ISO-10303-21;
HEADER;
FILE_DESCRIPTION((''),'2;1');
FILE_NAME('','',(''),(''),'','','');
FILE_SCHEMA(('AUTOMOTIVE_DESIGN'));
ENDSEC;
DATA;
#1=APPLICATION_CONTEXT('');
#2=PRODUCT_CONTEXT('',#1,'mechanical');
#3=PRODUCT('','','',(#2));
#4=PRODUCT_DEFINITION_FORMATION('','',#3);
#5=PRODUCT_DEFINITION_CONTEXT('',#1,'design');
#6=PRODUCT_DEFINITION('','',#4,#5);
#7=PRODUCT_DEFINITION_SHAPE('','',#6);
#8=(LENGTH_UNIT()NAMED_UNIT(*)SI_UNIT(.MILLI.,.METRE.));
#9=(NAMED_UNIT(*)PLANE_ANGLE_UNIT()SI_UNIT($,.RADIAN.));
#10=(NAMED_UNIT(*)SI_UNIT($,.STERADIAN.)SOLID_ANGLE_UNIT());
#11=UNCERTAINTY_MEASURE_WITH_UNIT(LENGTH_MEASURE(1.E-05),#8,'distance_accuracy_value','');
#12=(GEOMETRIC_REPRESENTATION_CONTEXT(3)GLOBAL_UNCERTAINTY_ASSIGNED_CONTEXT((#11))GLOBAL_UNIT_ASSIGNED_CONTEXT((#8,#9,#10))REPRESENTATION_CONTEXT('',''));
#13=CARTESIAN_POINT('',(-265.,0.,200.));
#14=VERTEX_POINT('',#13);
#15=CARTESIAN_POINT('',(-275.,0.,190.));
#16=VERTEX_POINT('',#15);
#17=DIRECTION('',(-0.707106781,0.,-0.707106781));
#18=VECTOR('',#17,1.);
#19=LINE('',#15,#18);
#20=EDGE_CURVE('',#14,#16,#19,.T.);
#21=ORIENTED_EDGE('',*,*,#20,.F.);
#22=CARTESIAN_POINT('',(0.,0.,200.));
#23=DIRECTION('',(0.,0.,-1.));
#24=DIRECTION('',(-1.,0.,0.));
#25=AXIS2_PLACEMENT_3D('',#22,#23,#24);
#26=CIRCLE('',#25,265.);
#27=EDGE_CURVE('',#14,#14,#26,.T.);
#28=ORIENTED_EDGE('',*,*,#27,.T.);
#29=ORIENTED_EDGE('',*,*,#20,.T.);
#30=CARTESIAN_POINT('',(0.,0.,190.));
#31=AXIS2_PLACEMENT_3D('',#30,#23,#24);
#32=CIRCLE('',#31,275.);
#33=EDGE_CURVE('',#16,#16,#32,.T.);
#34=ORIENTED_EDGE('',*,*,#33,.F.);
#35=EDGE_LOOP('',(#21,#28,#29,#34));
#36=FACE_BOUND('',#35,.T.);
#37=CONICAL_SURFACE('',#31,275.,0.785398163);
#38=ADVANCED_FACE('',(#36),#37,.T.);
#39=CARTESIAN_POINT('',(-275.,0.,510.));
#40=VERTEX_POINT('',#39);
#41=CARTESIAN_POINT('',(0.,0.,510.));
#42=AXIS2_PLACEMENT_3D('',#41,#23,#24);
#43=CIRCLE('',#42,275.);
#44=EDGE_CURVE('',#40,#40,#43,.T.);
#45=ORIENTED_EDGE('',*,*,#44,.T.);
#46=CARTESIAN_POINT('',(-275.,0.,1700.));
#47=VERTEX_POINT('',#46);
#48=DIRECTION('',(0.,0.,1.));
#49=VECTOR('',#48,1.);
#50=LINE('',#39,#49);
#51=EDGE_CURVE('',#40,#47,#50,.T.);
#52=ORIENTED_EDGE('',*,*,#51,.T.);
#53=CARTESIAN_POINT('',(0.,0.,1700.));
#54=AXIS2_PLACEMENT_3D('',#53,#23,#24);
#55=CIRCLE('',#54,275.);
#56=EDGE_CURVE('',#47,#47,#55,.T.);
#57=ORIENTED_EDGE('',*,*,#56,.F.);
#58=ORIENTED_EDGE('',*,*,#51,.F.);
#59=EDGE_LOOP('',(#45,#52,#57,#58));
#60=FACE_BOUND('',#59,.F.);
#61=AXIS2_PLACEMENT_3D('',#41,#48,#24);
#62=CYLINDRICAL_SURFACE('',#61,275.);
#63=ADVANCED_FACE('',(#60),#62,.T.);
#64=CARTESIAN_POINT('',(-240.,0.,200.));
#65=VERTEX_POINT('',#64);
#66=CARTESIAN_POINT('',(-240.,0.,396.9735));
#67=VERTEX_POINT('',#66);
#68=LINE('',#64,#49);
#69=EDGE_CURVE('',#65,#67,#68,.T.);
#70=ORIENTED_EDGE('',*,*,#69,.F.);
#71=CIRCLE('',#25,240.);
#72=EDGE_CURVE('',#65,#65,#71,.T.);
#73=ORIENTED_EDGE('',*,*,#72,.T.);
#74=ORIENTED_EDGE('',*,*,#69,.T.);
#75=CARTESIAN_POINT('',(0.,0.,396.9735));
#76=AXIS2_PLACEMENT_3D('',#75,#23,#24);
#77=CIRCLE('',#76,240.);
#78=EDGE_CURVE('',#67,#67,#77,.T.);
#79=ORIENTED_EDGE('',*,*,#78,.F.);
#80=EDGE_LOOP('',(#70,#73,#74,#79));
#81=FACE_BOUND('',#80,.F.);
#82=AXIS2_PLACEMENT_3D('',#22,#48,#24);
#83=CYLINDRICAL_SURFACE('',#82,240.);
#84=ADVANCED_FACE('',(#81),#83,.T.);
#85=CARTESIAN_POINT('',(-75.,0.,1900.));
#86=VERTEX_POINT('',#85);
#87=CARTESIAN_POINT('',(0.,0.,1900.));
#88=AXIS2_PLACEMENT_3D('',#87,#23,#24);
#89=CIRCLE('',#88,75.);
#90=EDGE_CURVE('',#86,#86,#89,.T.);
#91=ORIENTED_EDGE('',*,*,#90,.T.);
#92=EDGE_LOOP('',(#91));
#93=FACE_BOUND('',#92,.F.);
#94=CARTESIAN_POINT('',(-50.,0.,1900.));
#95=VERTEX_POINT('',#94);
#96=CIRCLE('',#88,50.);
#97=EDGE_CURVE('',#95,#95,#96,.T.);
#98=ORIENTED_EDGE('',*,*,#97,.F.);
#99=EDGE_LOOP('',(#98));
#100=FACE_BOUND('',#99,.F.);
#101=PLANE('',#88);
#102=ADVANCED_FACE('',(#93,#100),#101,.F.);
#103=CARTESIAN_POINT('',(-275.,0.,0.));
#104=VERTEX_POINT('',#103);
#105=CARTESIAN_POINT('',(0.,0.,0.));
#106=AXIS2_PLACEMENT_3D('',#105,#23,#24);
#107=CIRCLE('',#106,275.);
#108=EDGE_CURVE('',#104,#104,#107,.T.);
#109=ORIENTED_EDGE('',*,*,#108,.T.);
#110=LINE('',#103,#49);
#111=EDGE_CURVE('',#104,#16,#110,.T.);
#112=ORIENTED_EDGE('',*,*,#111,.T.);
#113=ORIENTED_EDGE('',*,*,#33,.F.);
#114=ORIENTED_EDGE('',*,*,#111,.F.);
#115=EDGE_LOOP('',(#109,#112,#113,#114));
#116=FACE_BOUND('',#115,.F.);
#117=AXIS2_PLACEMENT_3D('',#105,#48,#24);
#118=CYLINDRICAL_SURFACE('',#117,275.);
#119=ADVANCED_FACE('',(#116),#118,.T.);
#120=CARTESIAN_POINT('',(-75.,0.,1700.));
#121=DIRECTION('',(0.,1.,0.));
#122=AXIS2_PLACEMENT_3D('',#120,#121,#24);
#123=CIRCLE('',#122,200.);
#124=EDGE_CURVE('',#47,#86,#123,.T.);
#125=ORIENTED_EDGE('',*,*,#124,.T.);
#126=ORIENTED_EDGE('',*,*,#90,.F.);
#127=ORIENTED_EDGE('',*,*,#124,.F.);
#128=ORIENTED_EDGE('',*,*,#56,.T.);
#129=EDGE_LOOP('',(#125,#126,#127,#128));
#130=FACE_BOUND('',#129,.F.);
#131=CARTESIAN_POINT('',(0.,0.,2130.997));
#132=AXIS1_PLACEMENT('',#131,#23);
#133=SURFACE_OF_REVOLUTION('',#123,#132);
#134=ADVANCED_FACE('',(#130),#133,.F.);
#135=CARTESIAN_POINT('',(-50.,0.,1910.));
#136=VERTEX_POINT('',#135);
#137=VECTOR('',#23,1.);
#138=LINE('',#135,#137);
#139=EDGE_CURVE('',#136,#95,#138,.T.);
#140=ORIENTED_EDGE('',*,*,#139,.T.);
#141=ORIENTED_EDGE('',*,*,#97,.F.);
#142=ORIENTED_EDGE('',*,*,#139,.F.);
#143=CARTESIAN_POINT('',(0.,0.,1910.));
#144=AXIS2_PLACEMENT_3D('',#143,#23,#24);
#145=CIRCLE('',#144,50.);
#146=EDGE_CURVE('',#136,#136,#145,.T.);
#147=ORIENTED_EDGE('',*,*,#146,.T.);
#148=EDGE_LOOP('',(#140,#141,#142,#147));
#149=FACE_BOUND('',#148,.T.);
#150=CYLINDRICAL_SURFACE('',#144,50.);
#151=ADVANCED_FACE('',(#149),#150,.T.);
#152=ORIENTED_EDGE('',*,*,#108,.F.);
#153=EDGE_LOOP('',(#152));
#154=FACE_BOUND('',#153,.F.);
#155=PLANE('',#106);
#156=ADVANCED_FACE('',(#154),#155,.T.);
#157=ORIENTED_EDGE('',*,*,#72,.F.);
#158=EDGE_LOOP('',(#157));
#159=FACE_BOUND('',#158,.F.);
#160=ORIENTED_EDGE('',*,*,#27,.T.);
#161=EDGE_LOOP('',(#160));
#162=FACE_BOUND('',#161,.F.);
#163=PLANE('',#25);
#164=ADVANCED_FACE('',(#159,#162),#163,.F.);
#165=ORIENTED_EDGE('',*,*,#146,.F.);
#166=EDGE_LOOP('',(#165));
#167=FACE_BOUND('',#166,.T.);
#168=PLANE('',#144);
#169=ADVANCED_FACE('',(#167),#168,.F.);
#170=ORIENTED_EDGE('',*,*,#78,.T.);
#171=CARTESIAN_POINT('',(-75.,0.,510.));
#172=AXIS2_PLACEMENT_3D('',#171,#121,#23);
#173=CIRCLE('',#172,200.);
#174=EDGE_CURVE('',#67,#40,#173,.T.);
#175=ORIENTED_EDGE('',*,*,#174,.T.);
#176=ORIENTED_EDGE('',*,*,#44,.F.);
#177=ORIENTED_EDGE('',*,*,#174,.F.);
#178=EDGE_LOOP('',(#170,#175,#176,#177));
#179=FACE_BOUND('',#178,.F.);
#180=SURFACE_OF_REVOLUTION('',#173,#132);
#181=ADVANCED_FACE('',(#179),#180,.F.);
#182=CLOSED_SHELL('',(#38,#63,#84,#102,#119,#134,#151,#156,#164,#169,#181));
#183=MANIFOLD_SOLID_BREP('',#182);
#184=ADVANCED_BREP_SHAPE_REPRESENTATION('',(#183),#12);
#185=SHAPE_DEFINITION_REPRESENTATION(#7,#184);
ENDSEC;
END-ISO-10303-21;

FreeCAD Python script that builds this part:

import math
import FreeCAD as App
import Part
import Sketcher

V = App.Vector
Q = App.Units.Quantity


def edges_at(feature, points):
    """Names of the edges that pass closest to the given points."""
    edges = feature.Shape.Edges
    near = lambda p: min(range(len(edges)), key=lambda i: edges[i].distToShape(Part.Vertex(*p))[0])
    return sorted({f"Edge{near(p) + 1}" for p in points})

doc = App.newDocument("Part")
body = doc.addObject("PartDesign::Body", "Body")

# Sketch on XZ plane
sketch1 = doc.addObject("Sketcher::SketchObject", "Sketch")
body.addObject(sketch1)
sketch1.AttachmentSupport = (doc.XZ_Plane, [""])
sketch1.MapMode = "FlatFace"
sketch1.addGeometry(Part.LineSegment(V(-50, 1910, 0), V(0, 1910, 0)), False)
sketch1.addGeometry(Part.LineSegment(V(0, 1910, 0), V(0, 0, 0)), False)
sketch1.addGeometry(Part.LineSegment(V(0, 0, 0), V(-275, 0, 0)), False)
sketch1.addGeometry(Part.LineSegment(V(-275, 0, 0), V(-275, 200, 0)), False)
sketch1.addGeometry(Part.LineSegment(V(-275, 200, 0), V(-240, 200, 0)), False)
sketch1.addGeometry(Part.LineSegment(V(-240, 200, 0), V(-240, 397, 0)), False)
sketch1.addGeometry(Part.ArcOfCircle(Part.Circle(V(-75, 510, 0), V(0, 0, 1), 200), math.radians(180), math.radians(214)), False)
sketch1.addGeometry(Part.LineSegment(V(-275, 510, 0), V(-275, 1700, 0)), False)
sketch1.addGeometry(Part.ArcOfCircle(Part.Circle(V(-75, 1700, 0), V(0, 0, 1), 200), math.radians(90), math.radians(180)), False)
sketch1.addGeometry(Part.LineSegment(V(-75, 1900, 0), V(-50, 1900, 0)), False)
sketch1.addGeometry(Part.LineSegment(V(-50, 1900, 0), V(-50, 1910, 0)), False)
sketch1.addConstraint(Sketcher.Constraint("Coincident", 0, 2, 1, 1))
sketch1.addConstraint(Sketcher.Constraint("Coincident", 1, 2, 2, 1))
sketch1.addConstraint(Sketcher.Constraint("Coincident", 2, 2, 3, 1))
sketch1.addConstraint(Sketcher.Constraint("Coincident", 3, 2, 4, 1))
sketch1.addConstraint(Sketcher.Constraint("Coincident", 4, 2, 5, 1))
sketch1.addConstraint(Sketcher.Constraint("Coincident", 5, 2, 6, 2))
sketch1.addConstraint(Sketcher.Constraint("Tangent", 6, 1, 7, 1))
sketch1.addConstraint(Sketcher.Constraint("Tangent", 7, 2, 8, 2))
sketch1.addConstraint(Sketcher.Constraint("Tangent", 8, 1, 9, 1))
sketch1.addConstraint(Sketcher.Constraint("Coincident", 9, 2, 10, 1))
sketch1.addConstraint(Sketcher.Constraint("Coincident", 10, 2, 0, 1))
sketch1.addConstraint(Sketcher.Constraint("Horizontal", 0))
sketch1.addConstraint(Sketcher.Constraint("Vertical", 1))
sketch1.addConstraint(Sketcher.Constraint("Horizontal", 2))
sketch1.addConstraint(Sketcher.Constraint("Vertical", 3))
sketch1.addConstraint(Sketcher.Constraint("Horizontal", 4))
sketch1.addConstraint(Sketcher.Constraint("Vertical", 5))
sketch1.addConstraint(Sketcher.Constraint("Vertical", 7))
sketch1.addConstraint(Sketcher.Constraint("Horizontal", 9))
sketch1.addConstraint(Sketcher.Constraint("Vertical", 10))
sketch1.addConstraint(Sketcher.Constraint("Coincident", 1, 2, -1, 1))
sketch1.addConstraint(Sketcher.Constraint("Equal", 6, 8))
sketch1.addConstraint(Sketcher.Constraint("Vertical", 3, 2, 6, 1))
sketch1.addConstraint(Sketcher.Constraint("Radius", 6, Q("200 mm")))
sketch1.addConstraint(Sketcher.Constraint("DistanceX", 0, 1, 0, 2, Q("50 mm")))
sketch1.addConstraint(Sketcher.Constraint("DistanceX", 4, 1, 4, 2, Q("35 mm")))
sketch1.addConstraint(Sketcher.Constraint("DistanceY", 1, 2, 1, 1, Q("1910 mm")))
sketch1.addConstraint(Sketcher.Constraint("DistanceY", 3, 1, 3, 2, Q("200 mm")))
sketch1.addConstraint(Sketcher.Constraint("DistanceY", 10, 1, 10, 2, Q("10 mm")))
sketch1.addConstraint(Sketcher.Constraint("DistanceX", 2, 2, 2, 1, Q("275 mm")))
sketch1.addConstraint(Sketcher.Constraint("DistanceY", 7, 1, 7, 2, Q("1190 mm")))
revolution = doc.addObject("PartDesign::Revolution", "Revolution")
body.addObject(revolution)
revolution.Profile = sketch1
revolution.ReferenceAxis = (sketch1, ["V_Axis"])
revolution.Angle = 360
doc.recompute()

chamfer = doc.addObject("PartDesign::Chamfer", "Chamfer")
body.addObject(chamfer)
chamfer.Base = (revolution, edges_at(revolution, [(275, 0, 200)]))
chamfer.Size = 10

doc.recompute()
